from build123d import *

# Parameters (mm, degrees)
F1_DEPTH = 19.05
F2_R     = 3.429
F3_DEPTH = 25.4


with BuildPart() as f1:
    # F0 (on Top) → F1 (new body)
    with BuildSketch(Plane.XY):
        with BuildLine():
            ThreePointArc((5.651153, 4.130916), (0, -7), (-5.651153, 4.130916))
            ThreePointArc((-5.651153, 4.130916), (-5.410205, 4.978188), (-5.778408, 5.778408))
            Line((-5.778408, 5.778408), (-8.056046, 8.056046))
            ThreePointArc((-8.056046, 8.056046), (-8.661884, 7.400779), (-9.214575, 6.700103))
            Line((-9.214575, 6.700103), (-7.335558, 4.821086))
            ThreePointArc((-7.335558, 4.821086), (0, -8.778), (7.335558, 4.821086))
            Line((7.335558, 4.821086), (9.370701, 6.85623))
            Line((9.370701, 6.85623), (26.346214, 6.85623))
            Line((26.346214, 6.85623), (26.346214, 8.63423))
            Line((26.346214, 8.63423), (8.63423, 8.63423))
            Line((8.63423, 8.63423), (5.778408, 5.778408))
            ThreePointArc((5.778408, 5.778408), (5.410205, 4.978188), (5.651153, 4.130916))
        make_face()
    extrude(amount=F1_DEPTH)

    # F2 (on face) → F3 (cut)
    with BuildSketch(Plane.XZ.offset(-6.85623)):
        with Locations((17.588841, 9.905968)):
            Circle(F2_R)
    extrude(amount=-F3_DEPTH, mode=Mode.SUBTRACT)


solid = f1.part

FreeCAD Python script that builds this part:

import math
import FreeCAD as App
import Part
import Sketcher

V = App.Vector
Q = App.Units.Quantity

doc = App.newDocument("Part")
body = doc.addObject("PartDesign::Body", "Body")

# Sketch on XY plane
sketch1 = body.newObject("Sketcher::SketchObject", "Sketch")
sketch1.AttachmentSupport = (doc.getObject("XY_Plane"), [""])
sketch1.MapMode = "FlatFace"
sketch1.addGeometry(Part.ArcOfCircle(Part.Circle(V(0, 0, 0), V(0, 0, 1), 7), math.radians(144), math.radians(396)), False)
sketch1.addGeometry(Part.ArcOfCircle(Part.Circle(V(-6.7, 4.9, 0), V(0, 0, 1), 1.3), math.radians(-36), math.radians(45)), False)
sketch1.addGeometry(Part.LineSegment(V(-5.8, 5.8, 0), V(-8.1, 8.1, 0)), False)
sketch1.addGeometry(Part.ArcOfCircle(Part.Circle(V(0, 0, 0), V(0, 0, 1), 11.4), math.radians(135), math.radians(143.98)), False)
sketch1.addGeometry(Part.LineSegment(V(-9.2, 6.7, 0), V(-7.3, 4.8, 0)), False)
sketch1.addGeometry(Part.ArcOfCircle(Part.Circle(V(0, 0, 0), V(0, 0, 1), 8.8), math.radians(147), math.radians(393)), False)
sketch1.addGeometry(Part.LineSegment(V(7.3, 4.8, 0), V(9.4, 6.9, 0)), False)
sketch1.addGeometry(Part.LineSegment(V(9.4, 6.9, 0), V(26.3, 6.9, 0)), False)
sketch1.addGeometry(Part.LineSegment(V(26.3, 6.9, 0), V(26.3, 8.6, 0)), False)
sketch1.addGeometry(Part.LineSegment(V(26.3, 8.6, 0), V(8.6, 8.6, 0)), False)
sketch1.addGeometry(Part.LineSegment(V(8.6, 8.6, 0), V(5.8, 5.8, 0)), False)
sketch1.addGeometry(Part.ArcOfCircle(Part.Circle(V(6.7, 4.9, 0), V(0, 0, 1), 1.3), math.radians(135), math.radians(216)), False)
sketch1.addConstraint(Sketcher.Constraint("Tangent", 0, 1, 1, 1))
sketch1.addConstraint(Sketcher.Constraint("Tangent", 1, 2, 2, 1))
sketch1.addConstraint(Sketcher.Constraint("Coincident", 2, 2, 3, 1))
sketch1.addConstraint(Sketcher.Constraint("Coincident", 3, 2, 4, 1))
sketch1.addConstraint(Sketcher.Constraint("Coincident", 4, 2, 5, 1))
sketch1.addConstraint(Sketcher.Constraint("Coincident", 5, 2, 6, 1))
sketch1.addConstraint(Sketcher.Constraint("Coincident", 6, 2, 7, 1))
sketch1.addConstraint(Sketcher.Constraint("Coincident", 7, 2, 8, 1))
sketch1.addConstraint(Sketcher.Constraint("Coincident", 8, 2, 9, 1))
sketch1.addConstraint(Sketcher.Constraint("Coincident", 9, 2, 10, 1))
sketch1.addConstraint(Sketcher.Constraint("Tangent", 10, 2, 11, 1))
sketch1.addConstraint(Sketcher.Constraint("Tangent", 11, 2, 0, 2))
sketch1.addConstraint(Sketcher.Constraint("Horizontal", 7))
sketch1.addConstraint(Sketcher.Constraint("Vertical", 8))
sketch1.addConstraint(Sketcher.Constraint("Horizontal", 9))
sketch1.addConstraint(Sketcher.Constraint("Coincident", 0, 3, -1, 1))
sketch1.addConstraint(Sketcher.Constraint("Coincident", 5, 3, -1, 1))
sketch1.addConstraint(Sketcher.Constraint("Equal", 1, 11))
sketch1.addConstraint(Sketcher.Constraint("Symmetric", 1, 2, 10, 2, -2))
sketch1.addConstraint(Sketcher.Constraint("Parallel", 2, 4))
sketch1.addConstraint(Sketcher.Constraint("Perpendicular", 4, 6))
sketch1.addConstraint(Sketcher.Constraint("Parallel", 6, 10))
sketch1.addConstraint(Sketcher.Constraint("Horizontal", 4, 2, 5, 2))
sketch1.addConstraint(Sketcher.Constraint("Radius", 1, Q("0.05 in")))
sketch1.addConstraint(Sketcher.Constraint("DistanceY", 8, 1, 8, 2, Q("0.07 in")))
sketch1.addConstraint(Sketcher.Constraint("Radius", 0, Q("7 mm")))
sketch1.addConstraint(Sketcher.Constraint("Radius", 5, Q("8.778 mm")))
sketch1.addConstraint(Sketcher.Constraint("Radius", 3, Q("11.392959 mm")))
sketch1.addConstraint(Sketcher.Constraint("DistanceX", -1, 1, 6, 2, Q("9.370701 mm")))
sketch1.addConstraint(Sketcher.Constraint("DistanceY", 3, 3, 3, 2, Q("6.7001 mm")))
sketch1.addConstraint(Sketcher.Constraint("Distance", 4, Q("2.657331 mm")))
sketch1.addConstraint(Sketcher.Constraint("DistanceX", 7, 1, 7, 2, Q("16.975513 mm")))
sketch1.addConstraint(Sketcher.Constraint("DistanceX", 9, 2, 9, 1, Q("17.711984 mm")))
sketch1.addConstraint(Sketcher.Constraint("DistanceX", 1, 2, -1, 1, Q("5.778408 mm")))
pad1 = body.newObject("PartDesign::Pad", "Pad")
pad1.Profile = sketch1
pad1.Length = Q("0.75 in")

# Sketch on XZ plane
sketch2 = body.newObject("Sketcher::SketchObject", "Sketch001")
sketch2.AttachmentSupport = (doc.getObject("XZ_Plane"), [""])
sketch2.MapMode = "FlatFace"
sketch2.AttachmentOffset = App.Placement(V(0, 0, -6.85623), App.Rotation())
sketch2.addGeometry(Part.Circle(V(17.6, 9.9, 0), V(0, 0, 1), 3.4), False)
sketch2.addConstraint(Sketcher.Constraint("Diameter", 0, Q("0.27 in")))
sketch2.addConstraint(Sketcher.Constraint("DistanceX", -1, 1, 0, 3, Q("17.588841 mm")))
sketch2.addConstraint(Sketcher.Constraint("DistanceY", -1, 1, 0, 3, Q("9.905968 mm")))
pocket1 = body.newObject("PartDesign::Pocket", "Pocket")
pocket1.Profile = sketch2
pocket1.Length = Q("1 in")

doc.recompute()
